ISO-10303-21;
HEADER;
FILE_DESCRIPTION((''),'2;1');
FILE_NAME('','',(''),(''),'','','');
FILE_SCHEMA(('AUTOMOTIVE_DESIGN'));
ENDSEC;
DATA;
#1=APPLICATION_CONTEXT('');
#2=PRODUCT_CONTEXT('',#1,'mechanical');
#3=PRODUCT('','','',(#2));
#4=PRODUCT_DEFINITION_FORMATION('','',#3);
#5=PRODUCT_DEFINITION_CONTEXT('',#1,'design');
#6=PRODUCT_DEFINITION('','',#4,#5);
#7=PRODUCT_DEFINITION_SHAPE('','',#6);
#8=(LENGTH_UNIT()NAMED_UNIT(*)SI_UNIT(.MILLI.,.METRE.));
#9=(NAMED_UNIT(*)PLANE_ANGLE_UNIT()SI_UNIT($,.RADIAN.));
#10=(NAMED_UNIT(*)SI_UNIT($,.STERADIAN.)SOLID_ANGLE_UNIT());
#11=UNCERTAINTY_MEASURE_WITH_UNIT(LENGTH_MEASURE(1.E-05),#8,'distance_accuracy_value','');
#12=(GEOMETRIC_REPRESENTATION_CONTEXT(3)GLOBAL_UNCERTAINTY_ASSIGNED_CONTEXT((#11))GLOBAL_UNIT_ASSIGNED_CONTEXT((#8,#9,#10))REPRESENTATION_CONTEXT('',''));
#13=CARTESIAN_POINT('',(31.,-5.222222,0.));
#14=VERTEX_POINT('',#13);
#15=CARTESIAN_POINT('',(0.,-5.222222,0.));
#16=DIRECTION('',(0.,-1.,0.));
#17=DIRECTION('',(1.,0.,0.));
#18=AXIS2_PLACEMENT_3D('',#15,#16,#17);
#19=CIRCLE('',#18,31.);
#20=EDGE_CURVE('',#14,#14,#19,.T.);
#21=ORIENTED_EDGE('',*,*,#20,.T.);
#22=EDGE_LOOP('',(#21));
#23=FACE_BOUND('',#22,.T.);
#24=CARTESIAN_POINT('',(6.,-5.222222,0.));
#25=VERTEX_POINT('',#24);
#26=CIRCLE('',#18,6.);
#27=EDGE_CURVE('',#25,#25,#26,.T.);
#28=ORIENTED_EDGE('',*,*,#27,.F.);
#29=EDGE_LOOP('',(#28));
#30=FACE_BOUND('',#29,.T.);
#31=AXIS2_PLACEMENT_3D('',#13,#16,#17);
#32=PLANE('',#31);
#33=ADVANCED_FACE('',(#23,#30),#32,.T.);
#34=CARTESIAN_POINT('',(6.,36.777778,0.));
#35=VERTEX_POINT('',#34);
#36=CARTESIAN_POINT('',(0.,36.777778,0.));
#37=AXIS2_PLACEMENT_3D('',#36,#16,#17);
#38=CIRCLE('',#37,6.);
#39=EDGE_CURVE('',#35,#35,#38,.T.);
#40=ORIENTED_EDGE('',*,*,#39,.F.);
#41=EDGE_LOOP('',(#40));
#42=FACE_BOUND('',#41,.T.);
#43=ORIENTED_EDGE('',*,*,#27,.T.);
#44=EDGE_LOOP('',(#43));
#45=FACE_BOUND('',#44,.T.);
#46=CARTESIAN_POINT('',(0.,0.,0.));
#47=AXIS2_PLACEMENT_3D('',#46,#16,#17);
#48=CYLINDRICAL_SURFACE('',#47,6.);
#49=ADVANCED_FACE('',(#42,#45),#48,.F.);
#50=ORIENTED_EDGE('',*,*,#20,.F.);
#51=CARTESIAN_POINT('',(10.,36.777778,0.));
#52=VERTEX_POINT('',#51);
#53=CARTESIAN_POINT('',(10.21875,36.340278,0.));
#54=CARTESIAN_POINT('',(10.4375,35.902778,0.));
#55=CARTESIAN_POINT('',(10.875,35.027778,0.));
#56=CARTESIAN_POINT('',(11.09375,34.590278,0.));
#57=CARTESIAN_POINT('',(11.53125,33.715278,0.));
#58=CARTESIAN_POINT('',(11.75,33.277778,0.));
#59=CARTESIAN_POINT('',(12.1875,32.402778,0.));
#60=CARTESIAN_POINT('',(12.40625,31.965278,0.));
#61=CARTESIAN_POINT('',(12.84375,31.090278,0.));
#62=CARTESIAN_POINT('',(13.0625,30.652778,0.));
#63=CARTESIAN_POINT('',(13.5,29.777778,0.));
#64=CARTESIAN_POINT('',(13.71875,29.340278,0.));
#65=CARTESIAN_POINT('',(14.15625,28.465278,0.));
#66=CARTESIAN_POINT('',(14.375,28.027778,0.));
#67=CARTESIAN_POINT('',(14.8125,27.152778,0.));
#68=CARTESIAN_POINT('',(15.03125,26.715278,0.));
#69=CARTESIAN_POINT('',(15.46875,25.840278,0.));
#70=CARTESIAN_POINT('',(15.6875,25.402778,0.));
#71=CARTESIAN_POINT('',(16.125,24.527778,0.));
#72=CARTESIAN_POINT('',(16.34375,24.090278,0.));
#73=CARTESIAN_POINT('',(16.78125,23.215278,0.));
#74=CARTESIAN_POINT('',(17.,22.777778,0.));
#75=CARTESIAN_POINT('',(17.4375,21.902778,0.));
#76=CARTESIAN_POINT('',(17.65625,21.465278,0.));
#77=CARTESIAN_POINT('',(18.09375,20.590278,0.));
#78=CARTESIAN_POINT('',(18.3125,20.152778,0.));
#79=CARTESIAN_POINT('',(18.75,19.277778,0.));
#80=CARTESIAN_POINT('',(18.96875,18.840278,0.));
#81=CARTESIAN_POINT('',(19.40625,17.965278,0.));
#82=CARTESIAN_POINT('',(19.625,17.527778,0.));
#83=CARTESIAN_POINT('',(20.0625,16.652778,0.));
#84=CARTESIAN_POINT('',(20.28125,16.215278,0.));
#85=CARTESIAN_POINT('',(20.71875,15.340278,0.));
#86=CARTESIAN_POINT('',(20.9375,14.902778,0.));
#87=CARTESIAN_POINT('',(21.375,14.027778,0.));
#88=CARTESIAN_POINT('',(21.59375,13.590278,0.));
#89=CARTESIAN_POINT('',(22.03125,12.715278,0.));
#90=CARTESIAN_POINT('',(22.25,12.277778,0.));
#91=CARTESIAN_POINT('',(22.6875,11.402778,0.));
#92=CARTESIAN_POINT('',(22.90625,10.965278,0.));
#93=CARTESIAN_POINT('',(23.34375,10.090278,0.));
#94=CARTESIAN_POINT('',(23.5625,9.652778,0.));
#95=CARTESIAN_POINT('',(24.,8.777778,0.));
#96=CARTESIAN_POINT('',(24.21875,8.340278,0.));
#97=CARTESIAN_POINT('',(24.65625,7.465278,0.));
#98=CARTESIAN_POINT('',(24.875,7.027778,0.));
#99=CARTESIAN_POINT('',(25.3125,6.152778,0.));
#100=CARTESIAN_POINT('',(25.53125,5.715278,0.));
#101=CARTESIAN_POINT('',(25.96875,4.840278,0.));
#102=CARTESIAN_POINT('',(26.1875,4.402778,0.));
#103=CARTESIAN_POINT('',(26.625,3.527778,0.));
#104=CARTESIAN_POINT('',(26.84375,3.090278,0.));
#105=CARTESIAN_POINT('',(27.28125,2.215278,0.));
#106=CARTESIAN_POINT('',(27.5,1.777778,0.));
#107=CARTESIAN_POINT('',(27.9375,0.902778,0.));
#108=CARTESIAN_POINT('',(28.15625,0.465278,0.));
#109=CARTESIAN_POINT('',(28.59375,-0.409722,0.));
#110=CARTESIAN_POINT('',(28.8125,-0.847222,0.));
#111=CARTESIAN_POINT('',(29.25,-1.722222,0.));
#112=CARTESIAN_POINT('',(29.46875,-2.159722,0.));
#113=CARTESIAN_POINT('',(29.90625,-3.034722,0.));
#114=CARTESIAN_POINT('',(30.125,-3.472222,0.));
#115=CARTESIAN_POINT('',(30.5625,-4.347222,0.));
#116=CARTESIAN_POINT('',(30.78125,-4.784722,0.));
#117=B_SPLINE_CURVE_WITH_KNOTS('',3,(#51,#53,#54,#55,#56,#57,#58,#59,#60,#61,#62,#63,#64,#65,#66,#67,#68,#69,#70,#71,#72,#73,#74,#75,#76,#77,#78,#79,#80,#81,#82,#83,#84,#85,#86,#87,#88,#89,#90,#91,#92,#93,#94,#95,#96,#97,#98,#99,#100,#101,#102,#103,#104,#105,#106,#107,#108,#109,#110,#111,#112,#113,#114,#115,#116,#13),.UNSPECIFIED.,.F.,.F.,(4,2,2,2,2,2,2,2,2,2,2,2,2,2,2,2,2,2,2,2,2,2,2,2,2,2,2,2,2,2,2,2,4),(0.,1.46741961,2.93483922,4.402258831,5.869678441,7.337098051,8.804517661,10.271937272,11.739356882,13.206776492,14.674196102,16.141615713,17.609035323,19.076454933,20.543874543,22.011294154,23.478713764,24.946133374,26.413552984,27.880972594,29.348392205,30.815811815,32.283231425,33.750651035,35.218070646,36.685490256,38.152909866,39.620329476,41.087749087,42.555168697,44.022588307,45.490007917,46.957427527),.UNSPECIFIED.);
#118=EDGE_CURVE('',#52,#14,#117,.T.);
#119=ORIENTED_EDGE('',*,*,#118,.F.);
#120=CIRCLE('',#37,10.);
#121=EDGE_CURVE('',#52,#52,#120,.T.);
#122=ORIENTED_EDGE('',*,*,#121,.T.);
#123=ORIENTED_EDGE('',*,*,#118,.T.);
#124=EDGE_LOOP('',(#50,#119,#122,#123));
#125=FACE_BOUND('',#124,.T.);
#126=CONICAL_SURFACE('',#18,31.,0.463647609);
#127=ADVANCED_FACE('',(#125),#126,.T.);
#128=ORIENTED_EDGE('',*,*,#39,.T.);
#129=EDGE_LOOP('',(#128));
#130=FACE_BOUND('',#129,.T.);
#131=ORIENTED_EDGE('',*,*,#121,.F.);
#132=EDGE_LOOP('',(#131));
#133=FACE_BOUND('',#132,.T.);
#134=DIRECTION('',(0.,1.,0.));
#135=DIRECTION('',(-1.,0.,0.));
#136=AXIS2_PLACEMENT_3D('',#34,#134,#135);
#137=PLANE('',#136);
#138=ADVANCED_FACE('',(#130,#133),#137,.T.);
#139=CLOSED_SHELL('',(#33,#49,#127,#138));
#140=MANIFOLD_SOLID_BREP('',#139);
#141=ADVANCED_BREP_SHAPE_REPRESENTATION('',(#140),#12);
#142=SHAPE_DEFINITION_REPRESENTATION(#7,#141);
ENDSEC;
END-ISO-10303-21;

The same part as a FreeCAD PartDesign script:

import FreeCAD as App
import Part
import Sketcher
from FreeCAD import Vector
Q = App.Units.Quantity


def add_polygon(sketch, points):
    """Adds a closed chain of lines whose ends are joined by coincident constraints."""
    first, n = sketch.GeometryCount, len(points)
    for a, b in zip(points, points[1:] + points[:1]):
        sketch.addGeometry(Part.LineSegment(App.Vector(*a, 0), App.Vector(*b, 0)), False)
    for i in range(n):
        sketch.addConstraint(Sketcher.Constraint("Coincident", first + i, 2, first + (i + 1) % n, 1))

doc = App.newDocument("Part")
body = doc.addObject("PartDesign::Body", "Body")

# Sketch on XY plane
sketch1 = doc.addObject("Sketcher::SketchObject", "Sketch")
body.addObject(sketch1)
sketch1.AttachmentSupport = (doc.XY_Plane, [""])
sketch1.MapMode = "FlatFace"
add_polygon(sketch1, [(6, 36.8), (6, -5.2), (31, -5.2), (10, 36.8)])  # lines 0-3
sketch1.addConstraint([
    Sketcher.Constraint("Vertical", 0),
    Sketcher.Constraint("Horizontal", 1),
    Sketcher.Constraint("Horizontal", 3),
    Sketcher.Constraint("DistanceX", 1, 1, 1, 2, Q("25 mm")),
    Sketcher.Constraint("DistanceX", 3, 2, 3, 1, Q("4 mm")),
    Sketcher.Constraint("DistanceY", 0, 2, 0, 1, Q("42 mm")),
    Sketcher.Constraint("DistanceX", -1, 1, 0, 2, Q("6 mm")),
    Sketcher.Constraint("DistanceY", 0, 2, -1, 1, Q("5.222222 mm")),
])
revolution = doc.addObject("PartDesign::Revolution", "Revolution")
body.addObject(revolution)
revolution.Profile = sketch1
revolution.ReferenceAxis = (sketch1, ["V_Axis"])
revolution.Angle = 360

doc.recompute()
